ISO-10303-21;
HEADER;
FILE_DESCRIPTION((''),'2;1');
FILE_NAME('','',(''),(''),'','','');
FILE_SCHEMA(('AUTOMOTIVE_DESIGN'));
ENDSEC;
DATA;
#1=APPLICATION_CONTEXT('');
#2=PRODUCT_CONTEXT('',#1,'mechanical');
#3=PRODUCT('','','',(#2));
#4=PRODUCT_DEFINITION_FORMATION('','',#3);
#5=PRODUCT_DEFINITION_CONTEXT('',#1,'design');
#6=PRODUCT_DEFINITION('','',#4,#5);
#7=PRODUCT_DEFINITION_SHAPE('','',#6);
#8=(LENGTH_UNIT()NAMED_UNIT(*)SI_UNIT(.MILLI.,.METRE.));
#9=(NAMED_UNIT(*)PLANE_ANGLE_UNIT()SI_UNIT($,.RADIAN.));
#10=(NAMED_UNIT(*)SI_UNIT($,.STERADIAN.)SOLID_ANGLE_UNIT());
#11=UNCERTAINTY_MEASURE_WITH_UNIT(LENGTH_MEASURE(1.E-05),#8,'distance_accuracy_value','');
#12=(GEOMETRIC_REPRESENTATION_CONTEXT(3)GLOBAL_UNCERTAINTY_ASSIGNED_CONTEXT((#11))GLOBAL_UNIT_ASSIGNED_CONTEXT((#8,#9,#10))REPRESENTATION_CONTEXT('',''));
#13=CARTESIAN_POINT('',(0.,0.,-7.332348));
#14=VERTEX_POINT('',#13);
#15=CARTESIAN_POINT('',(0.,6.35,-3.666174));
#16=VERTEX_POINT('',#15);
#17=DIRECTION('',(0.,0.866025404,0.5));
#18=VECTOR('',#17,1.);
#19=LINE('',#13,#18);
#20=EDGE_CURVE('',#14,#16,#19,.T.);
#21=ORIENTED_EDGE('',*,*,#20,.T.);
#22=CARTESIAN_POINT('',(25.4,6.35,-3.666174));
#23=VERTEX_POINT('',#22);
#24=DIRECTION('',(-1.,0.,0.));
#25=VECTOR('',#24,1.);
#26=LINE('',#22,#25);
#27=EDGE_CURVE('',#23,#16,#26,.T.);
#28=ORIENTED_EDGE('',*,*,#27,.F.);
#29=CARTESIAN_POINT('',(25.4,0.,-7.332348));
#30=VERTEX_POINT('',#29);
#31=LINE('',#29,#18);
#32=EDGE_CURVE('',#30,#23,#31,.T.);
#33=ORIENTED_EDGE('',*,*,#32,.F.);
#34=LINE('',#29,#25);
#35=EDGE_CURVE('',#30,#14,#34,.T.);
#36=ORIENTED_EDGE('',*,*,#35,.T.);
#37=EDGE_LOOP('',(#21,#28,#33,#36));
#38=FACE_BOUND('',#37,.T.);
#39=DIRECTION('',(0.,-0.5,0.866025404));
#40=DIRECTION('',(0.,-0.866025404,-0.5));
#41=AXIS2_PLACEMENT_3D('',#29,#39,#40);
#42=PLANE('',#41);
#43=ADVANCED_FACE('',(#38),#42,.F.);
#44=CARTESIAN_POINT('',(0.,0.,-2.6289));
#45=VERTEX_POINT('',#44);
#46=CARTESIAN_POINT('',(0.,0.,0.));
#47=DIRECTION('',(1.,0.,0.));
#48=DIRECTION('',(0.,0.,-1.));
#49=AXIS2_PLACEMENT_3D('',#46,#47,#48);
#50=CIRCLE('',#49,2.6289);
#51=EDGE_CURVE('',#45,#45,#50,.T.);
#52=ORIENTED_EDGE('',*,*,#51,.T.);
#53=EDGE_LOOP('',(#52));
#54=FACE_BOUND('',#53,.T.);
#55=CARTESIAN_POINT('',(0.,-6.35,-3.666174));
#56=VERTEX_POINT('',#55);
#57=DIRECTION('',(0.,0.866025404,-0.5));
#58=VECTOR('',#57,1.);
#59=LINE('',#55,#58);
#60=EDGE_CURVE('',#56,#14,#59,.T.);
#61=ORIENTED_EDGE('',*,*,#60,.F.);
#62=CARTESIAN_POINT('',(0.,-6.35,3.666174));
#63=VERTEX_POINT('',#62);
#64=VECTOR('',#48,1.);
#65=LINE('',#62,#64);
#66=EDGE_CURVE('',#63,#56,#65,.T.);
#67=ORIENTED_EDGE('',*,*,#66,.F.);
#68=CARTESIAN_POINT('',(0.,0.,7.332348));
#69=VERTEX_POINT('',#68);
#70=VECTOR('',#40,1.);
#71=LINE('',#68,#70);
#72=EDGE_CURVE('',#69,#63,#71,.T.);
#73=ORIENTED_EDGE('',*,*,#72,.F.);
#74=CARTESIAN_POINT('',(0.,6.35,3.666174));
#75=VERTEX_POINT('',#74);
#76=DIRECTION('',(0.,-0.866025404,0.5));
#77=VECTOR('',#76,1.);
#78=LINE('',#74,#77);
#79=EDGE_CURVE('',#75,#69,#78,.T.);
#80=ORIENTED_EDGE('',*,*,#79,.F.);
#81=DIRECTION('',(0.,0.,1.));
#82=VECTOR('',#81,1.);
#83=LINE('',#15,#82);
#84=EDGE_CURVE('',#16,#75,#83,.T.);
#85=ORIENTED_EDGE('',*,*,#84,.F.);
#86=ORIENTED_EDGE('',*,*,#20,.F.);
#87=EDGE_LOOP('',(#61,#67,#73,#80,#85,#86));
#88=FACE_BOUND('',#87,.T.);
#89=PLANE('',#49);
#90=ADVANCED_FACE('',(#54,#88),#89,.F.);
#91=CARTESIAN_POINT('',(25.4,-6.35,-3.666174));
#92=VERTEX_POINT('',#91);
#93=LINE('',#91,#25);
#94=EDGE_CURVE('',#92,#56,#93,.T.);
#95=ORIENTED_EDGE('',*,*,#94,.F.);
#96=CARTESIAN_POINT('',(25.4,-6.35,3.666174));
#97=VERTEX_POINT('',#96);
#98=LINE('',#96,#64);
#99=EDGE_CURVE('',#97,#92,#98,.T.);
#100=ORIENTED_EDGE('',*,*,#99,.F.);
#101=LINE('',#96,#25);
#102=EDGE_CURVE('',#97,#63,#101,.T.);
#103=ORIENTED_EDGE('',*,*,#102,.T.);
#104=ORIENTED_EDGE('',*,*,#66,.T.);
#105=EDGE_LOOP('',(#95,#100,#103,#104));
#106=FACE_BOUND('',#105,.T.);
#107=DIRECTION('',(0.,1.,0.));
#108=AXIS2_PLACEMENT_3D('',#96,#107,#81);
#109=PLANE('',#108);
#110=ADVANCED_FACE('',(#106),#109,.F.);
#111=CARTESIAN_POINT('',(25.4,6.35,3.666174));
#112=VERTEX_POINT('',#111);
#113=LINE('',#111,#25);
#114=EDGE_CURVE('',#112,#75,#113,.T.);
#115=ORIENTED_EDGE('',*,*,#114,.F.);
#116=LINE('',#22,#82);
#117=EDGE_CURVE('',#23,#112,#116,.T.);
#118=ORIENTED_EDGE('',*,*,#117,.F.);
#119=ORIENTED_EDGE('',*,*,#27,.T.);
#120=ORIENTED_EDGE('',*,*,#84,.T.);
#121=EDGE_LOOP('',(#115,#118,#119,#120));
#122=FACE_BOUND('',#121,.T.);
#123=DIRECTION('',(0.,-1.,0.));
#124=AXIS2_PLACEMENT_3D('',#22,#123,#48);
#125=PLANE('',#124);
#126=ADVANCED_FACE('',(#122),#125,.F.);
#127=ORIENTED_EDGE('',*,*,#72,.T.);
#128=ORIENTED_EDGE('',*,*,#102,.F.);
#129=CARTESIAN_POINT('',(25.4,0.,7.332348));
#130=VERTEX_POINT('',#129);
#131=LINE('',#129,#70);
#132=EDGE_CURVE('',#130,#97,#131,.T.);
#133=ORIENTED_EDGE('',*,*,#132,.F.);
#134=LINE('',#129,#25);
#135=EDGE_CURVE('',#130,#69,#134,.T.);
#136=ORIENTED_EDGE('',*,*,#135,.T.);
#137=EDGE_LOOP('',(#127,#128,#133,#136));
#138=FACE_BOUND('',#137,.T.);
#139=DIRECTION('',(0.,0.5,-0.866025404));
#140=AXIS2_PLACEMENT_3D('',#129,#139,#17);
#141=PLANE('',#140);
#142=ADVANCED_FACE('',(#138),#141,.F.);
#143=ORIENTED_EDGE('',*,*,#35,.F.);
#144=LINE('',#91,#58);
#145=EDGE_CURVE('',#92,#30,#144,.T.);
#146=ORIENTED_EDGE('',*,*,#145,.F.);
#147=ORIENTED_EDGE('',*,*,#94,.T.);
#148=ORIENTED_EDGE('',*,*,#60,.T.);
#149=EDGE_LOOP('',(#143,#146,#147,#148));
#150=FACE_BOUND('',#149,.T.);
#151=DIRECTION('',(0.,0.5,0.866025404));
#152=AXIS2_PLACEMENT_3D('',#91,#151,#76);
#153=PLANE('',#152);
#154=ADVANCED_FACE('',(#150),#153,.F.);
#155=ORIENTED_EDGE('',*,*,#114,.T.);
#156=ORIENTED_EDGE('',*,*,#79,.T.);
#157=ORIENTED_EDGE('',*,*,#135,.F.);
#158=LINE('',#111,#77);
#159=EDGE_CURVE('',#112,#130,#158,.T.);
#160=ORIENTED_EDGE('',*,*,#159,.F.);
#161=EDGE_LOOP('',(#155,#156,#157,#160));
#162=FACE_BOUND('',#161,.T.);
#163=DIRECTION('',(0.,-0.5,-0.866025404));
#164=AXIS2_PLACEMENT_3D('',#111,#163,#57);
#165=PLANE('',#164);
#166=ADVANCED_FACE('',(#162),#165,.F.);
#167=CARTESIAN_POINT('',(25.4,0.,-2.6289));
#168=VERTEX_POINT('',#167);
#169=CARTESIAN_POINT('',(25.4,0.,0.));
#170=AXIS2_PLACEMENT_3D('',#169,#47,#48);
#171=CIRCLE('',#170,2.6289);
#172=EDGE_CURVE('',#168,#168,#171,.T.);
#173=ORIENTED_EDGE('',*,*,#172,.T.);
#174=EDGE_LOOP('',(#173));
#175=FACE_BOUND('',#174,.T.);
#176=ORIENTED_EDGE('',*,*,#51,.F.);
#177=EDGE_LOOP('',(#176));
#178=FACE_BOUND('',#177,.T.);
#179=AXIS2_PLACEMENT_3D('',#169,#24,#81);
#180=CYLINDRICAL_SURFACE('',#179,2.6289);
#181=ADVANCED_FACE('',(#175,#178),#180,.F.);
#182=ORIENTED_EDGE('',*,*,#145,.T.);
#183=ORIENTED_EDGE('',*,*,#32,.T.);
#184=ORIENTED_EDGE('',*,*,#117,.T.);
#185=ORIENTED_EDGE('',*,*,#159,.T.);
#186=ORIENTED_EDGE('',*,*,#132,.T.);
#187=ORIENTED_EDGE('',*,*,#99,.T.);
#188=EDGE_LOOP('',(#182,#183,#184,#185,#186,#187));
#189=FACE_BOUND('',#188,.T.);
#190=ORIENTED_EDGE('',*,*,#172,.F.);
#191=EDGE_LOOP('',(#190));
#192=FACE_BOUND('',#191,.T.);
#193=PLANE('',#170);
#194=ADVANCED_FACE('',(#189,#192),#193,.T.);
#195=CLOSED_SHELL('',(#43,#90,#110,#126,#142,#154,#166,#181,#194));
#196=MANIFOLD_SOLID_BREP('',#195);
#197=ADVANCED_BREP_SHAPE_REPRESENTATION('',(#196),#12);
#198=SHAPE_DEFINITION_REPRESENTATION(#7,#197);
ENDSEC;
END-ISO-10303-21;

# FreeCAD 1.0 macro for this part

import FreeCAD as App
import Part
import Sketcher
Q = App.Units.Quantity


def add_polygon(sketch, points):
    """Adds a closed chain of lines whose ends are joined by coincident constraints."""
    first, n = sketch.GeometryCount, len(points)
    for a, b in zip(points, points[1:] + points[:1]):
        sketch.addGeometry(Part.LineSegment(App.Vector(*a, 0), App.Vector(*b, 0)), False)
    for i in range(n):
        sketch.addConstraint(Sketcher.Constraint("Coincident", first + i, 2, first + (i + 1) % n, 1))

doc = App.newDocument("Part")
params = doc.addObject("Spreadsheet::Sheet", "Params")
for row, (alias, value) in enumerate([
    ("sketch1_diameter", "0.207 in"),
    ("pad1_length", "1 in"),
], start=1):
    params.set(f"A{row}", alias)
    params.set(f"B{row}", "=" + value)
    params.setAlias(f"B{row}", alias)

body = doc.addObject("PartDesign::Body", "Body")

# Sketch on YZ plane
sketch1 = body.newObject("Sketcher::SketchObject", "Sketch")
sketch1.AttachmentSupport = (doc.getObject("YZ_Plane"), [""])
sketch1.MapMode = "FlatFace"
add_polygon(sketch1, [(-6.3, -3.7), (0, -7.3), (6.3, -3.7), (6.3, 3.7), (0, 7.3), (-6.3, 3.7)])  # lines 0-5
sketch1.addGeometry(Part.Circle(App.Vector(0, 0, 0), App.Vector(0, 0, 1), 2.6), False)  # 6
sketch1.addConstraint(Sketcher.Constraint("Vertical", 2))
sketch1.addConstraint(Sketcher.Constraint("Vertical", 5))
sketch1.addConstraint(Sketcher.Constraint("Coincident", 6, 3, -1, 1))
sketch1.addConstraint(Sketcher.Constraint("Symmetric", 0, 2, 3, 2, -1, 1))
sketch1.addConstraint(Sketcher.Constraint("Symmetric", 1, 2, 4, 2, -1, 1))
sketch1.addConstraint(Sketcher.Constraint("PointOnObject", 0, 2, -2))
sketch1.addConstraint(Sketcher.Constraint("Parallel", 0, 3))
sketch1.addConstraint(Sketcher.Constraint("Horizontal", 2, 2, 4, 2))
sketch1.addConstraint(Sketcher.Constraint("Diameter", 6, Q("0.207 in")))
sketch1.addConstraint(Sketcher.Constraint("Angle", 0, Q("-30 deg")))
sketch1.addConstraint(Sketcher.Constraint("DistanceX", 4, 2, 2, 2, Q("0.5 in")))
sketch1.addConstraint(Sketcher.Constraint("DistanceY", 2, 1, 2, 2, Q("7.332348 mm")))
sketch1.setExpression("Constraints[14]", "Params.sketch1_diameter")
pad1 = body.newObject("PartDesign::Pad", "Pad")
pad1.Profile = sketch1
pad1.setExpression("Length", "Params.pad1_length")

doc.recompute()
